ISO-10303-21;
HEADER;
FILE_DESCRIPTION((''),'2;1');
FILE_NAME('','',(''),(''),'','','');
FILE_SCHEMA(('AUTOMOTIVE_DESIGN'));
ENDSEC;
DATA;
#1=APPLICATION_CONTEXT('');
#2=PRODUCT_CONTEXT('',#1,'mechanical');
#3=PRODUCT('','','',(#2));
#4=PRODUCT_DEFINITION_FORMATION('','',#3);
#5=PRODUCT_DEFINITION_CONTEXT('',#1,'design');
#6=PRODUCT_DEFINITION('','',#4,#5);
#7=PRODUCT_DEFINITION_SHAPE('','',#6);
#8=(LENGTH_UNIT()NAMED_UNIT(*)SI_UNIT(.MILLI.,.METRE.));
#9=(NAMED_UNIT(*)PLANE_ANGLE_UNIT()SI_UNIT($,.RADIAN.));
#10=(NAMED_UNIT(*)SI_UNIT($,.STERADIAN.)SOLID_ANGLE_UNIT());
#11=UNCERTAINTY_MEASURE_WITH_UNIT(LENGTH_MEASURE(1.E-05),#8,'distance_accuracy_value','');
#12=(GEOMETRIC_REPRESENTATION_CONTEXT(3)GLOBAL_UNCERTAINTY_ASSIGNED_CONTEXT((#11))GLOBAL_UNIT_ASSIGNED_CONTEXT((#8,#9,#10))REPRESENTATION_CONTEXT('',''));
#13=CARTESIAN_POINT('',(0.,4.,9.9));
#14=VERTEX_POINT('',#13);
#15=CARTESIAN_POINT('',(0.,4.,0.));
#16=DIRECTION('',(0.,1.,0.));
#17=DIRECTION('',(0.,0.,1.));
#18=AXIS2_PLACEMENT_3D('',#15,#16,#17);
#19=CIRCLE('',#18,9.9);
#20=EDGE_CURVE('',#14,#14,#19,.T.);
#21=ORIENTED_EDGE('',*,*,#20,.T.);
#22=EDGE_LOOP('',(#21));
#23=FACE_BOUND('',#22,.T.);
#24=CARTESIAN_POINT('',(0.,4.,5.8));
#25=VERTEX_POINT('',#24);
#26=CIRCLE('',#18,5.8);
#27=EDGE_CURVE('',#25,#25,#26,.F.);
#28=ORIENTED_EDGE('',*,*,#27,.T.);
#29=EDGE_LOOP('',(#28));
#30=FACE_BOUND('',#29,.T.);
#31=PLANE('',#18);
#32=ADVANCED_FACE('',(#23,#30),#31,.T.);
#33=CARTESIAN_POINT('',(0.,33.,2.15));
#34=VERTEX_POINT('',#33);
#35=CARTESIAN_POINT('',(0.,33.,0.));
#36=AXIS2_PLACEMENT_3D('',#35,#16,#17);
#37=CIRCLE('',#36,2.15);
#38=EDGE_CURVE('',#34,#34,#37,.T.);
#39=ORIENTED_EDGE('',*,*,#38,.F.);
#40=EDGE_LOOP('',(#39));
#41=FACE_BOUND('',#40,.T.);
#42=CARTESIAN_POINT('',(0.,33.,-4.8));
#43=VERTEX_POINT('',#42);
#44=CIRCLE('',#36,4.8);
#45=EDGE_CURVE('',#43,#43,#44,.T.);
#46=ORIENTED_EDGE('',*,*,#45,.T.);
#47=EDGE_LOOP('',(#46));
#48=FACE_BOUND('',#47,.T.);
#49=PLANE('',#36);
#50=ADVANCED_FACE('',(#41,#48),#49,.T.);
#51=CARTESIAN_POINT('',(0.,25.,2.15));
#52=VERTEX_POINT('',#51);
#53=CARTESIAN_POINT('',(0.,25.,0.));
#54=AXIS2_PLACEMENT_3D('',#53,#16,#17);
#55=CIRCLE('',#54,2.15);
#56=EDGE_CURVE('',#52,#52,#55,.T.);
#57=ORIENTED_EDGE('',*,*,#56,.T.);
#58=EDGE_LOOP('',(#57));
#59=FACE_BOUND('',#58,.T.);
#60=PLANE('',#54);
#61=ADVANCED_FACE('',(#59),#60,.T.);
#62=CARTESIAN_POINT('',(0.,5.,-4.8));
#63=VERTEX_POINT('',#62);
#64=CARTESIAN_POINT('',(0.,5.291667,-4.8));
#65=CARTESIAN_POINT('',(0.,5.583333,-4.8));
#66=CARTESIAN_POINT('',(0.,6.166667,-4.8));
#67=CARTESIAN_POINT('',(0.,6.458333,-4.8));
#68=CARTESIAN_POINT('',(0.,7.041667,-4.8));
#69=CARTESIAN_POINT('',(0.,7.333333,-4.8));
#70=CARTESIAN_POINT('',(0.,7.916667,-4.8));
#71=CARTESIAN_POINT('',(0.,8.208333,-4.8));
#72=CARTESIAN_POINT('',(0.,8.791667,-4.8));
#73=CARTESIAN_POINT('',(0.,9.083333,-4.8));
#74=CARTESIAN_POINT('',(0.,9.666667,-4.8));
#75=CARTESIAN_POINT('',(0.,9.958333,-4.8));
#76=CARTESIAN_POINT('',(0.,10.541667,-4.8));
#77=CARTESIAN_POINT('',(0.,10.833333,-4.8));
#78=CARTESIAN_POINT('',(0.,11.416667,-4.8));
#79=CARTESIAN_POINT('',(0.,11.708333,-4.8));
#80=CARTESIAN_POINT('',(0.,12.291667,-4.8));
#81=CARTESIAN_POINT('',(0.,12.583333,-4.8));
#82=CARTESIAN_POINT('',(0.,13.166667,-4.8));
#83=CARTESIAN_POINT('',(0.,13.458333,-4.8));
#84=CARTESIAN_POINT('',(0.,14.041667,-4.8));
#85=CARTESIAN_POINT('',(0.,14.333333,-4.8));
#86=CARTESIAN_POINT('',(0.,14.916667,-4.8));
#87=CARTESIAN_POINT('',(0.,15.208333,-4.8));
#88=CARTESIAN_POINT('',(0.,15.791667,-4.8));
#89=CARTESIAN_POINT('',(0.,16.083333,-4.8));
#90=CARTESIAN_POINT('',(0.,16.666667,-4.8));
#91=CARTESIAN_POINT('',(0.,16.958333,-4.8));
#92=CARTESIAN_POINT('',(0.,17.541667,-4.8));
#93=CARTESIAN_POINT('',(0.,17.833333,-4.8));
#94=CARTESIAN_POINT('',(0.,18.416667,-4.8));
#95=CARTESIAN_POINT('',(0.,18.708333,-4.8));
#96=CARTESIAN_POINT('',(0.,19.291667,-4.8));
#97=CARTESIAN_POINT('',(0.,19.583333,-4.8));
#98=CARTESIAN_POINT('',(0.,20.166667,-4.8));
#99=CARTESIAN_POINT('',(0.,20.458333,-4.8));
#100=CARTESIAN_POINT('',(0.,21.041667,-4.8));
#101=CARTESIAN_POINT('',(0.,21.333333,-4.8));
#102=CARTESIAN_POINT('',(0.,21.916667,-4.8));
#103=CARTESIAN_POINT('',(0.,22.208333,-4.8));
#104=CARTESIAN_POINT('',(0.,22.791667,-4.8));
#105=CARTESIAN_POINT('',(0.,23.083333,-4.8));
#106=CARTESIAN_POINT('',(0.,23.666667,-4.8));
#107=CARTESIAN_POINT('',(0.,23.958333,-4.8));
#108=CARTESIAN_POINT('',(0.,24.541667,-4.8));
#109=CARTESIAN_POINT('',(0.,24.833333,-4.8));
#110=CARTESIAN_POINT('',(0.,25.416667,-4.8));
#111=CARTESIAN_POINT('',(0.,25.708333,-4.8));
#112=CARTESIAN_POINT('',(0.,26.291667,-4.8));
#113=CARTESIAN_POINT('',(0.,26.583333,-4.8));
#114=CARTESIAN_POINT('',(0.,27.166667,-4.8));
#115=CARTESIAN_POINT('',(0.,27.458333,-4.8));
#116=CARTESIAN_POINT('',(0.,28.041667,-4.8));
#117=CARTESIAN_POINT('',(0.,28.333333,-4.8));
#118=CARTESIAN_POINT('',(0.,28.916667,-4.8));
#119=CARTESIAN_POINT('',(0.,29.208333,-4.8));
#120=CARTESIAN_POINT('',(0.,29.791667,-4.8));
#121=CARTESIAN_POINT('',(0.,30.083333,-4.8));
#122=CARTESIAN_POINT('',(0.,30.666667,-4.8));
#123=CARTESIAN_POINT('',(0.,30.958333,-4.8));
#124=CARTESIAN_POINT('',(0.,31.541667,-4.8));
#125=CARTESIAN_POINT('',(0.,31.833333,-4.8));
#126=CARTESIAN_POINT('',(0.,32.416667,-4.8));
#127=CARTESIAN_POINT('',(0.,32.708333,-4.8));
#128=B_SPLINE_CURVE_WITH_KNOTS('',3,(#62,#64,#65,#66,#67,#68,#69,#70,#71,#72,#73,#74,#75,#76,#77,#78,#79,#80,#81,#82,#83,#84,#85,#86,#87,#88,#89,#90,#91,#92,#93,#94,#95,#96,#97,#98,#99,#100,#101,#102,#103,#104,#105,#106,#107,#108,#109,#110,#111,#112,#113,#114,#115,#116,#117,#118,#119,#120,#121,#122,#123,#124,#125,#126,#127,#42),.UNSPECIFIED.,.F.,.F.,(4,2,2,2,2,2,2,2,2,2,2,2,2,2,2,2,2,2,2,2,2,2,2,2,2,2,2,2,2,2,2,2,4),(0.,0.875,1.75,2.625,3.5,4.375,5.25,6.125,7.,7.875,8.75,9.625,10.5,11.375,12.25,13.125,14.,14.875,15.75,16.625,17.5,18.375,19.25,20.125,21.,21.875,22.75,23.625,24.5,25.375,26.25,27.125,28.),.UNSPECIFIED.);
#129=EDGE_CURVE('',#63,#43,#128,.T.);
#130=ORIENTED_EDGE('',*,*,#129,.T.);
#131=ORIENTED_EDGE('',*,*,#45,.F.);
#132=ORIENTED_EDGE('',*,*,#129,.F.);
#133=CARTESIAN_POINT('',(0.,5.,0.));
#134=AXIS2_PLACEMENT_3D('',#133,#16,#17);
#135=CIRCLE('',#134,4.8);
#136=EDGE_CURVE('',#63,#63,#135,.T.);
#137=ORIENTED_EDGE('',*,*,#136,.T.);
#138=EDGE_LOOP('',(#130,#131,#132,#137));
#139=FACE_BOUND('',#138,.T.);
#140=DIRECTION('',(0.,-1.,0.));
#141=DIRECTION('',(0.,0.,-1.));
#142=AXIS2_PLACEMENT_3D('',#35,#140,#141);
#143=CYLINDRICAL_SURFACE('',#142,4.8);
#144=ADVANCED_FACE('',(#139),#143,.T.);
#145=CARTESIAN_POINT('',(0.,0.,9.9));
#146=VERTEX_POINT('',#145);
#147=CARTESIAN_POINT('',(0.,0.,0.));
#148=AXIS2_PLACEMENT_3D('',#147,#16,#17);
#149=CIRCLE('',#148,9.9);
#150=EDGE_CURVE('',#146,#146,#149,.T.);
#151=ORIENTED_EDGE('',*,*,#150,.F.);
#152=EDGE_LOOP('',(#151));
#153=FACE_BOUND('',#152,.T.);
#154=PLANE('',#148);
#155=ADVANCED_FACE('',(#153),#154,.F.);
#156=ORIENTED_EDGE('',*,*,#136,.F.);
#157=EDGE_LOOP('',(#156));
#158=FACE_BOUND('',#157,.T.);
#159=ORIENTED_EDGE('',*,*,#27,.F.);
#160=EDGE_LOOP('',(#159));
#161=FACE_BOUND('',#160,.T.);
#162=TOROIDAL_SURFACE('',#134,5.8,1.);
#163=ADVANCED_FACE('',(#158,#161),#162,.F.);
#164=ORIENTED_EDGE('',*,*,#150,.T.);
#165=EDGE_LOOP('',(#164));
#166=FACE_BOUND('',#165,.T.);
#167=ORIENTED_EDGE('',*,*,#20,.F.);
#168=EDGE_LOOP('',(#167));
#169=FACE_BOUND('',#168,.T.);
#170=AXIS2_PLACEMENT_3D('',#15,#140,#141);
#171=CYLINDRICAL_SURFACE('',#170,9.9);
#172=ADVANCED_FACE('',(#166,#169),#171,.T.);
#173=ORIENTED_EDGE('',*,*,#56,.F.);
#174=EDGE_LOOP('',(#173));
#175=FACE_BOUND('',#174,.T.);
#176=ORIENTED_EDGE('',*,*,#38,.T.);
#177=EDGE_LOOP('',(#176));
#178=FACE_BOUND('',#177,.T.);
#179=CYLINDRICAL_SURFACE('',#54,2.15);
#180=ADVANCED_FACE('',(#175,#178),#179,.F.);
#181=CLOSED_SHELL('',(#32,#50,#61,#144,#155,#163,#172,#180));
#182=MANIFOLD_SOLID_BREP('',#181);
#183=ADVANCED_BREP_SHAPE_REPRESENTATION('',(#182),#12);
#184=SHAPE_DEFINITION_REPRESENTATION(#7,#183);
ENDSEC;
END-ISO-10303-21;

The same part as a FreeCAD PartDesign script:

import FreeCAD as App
import Part
import Sketcher

V = App.Vector
Q = App.Units.Quantity


def edges_at(feature, points):
    """Names of the edges that pass closest to the given points."""
    edges = feature.Shape.Edges
    near = lambda p: min(range(len(edges)), key=lambda i: edges[i].distToShape(Part.Vertex(*p))[0])
    return sorted({f"Edge{near(p) + 1}" for p in points})

doc = App.newDocument("Part")
params = doc.addObject("Spreadsheet::Sheet", "Params")
for row, (alias, value) in enumerate([
    ("sketch1_diameter", "19.8 mm"),
    ("pad1_length", "4 mm"),
    ("sketch2_diameter", "9.6 mm"),
    ("pad2_length", "29 mm"),
    ("sketch3_diameter", "4.3 mm"),
    ("pocket1_length", "8 mm"),
    ("fillet_radius", "1 mm"),
], start=1):
    params.set(f"A{row}", alias)
    params.set(f"B{row}", "=" + value)
    params.setAlias(f"B{row}", alias)

body = doc.addObject("PartDesign::Body", "Body")

# Sketch on XZ plane
sketch1 = body.newObject("Sketcher::SketchObject", "Sketch")
sketch1.AttachmentSupport = (doc.getObject("XZ_Plane"), [""])
sketch1.MapMode = "FlatFace"
sketch1.addGeometry(Part.Circle(V(0, 0, 0), V(0, 0, 1), 10), False)
sketch1.addConstraint(Sketcher.Constraint("Coincident", 0, 3, -1, 1))
sketch1.addConstraint(Sketcher.Constraint("Diameter", 0, Q("19.8 mm")))
sketch1.setExpression("Constraints[1]", "Params.sketch1_diameter")
pad1 = body.newObject("PartDesign::Pad", "Pad")
pad1.Profile = sketch1
pad1.setExpression("Length", "Params.pad1_length")
pad1.Reversed = True

# Sketch on XZ plane
sketch2 = body.newObject("Sketcher::SketchObject", "Sketch001")
sketch2.AttachmentSupport = (doc.getObject("XZ_Plane"), [""])
sketch2.MapMode = "FlatFace"
sketch2.AttachmentOffset = App.Placement(V(0, 0, -4), App.Rotation())
sketch2.addGeometry(Part.Circle(V(0, 0, 0), V(0, 0, 1), 4.8), False)
sketch2.addConstraint(Sketcher.Constraint("Coincident", 0, 3, -1, 1))
sketch2.addConstraint(Sketcher.Constraint("Diameter", 0, Q("9.6 mm")))
sketch2.setExpression("Constraints[1]", "Params.sketch2_diameter")
pad2 = body.newObject("PartDesign::Pad", "Pad001")
pad2.Profile = sketch2
pad2.setExpression("Length", "Params.pad2_length")
pad2.Reversed = True

# Sketch on XZ plane
sketch3 = body.newObject("Sketcher::SketchObject", "Sketch002")
sketch3.AttachmentSupport = (doc.getObject("XZ_Plane"), [""])
sketch3.MapMode = "FlatFace"
sketch3.AttachmentOffset = App.Placement(V(0, 0, -33), App.Rotation())
sketch3.addGeometry(Part.Circle(V(0, 0, 0), V(0, 0, 1), 2.1), False)
sketch3.addConstraint(Sketcher.Constraint("Coincident", 0, 3, -1, 1))
sketch3.addConstraint(Sketcher.Constraint("Diameter", 0, Q("4.3 mm")))
sketch3.setExpression("Constraints[1]", "Params.sketch3_diameter")
pocket1 = body.newObject("PartDesign::Pocket", "Pocket")
pocket1.Profile = sketch3
pocket1.setExpression("Length", "Params.pocket1_length")
pocket1.Reversed = True
doc.recompute()

fillet = body.newObject("PartDesign::Fillet", "Fillet")
fillet.Base = (pocket1, edges_at(pocket1, [(0, 4, 4.8)]))
fillet.setExpression("Radius", "Params.fillet_radius")

doc.recompute()
